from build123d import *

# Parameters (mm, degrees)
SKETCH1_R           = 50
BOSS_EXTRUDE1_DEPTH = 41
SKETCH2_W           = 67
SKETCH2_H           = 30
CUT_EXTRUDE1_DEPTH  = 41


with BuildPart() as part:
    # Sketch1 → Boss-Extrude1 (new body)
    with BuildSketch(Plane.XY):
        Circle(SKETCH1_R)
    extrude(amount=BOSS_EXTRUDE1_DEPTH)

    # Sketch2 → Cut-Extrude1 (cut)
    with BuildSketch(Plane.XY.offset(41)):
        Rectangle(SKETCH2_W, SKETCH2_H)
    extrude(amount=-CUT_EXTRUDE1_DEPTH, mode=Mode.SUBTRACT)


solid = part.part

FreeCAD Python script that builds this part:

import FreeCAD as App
import Part
import Sketcher

V = App.Vector


def add_polygon(sketch, points):
    """Adds a closed chain of lines whose ends are joined by coincident constraints."""
    first, n = sketch.GeometryCount, len(points)
    for a, b in zip(points, points[1:] + points[:1]):
        sketch.addGeometry(Part.LineSegment(App.Vector(*a, 0), App.Vector(*b, 0)), False)
    for i in range(n):
        sketch.addConstraint(Sketcher.Constraint("Coincident", first + i, 2, first + (i + 1) % n, 1))

doc = App.newDocument("Part")
body = doc.addObject("PartDesign::Body", "Body")

sketch1 = body.newObject("Sketcher::SketchObject", "Sketch")
sketch1.AttachmentSupport = (doc.getObject("XY_Plane"), [""])
sketch1.MapMode = "FlatFace"
sketch1.addGeometry(Part.Circle(V(0, 0, 0), V(0, 0, 1), 50), False)
sketch1.addConstraint(Sketcher.Constraint("Coincident", 0, 3, -1, 1))
sketch1.addConstraint(Sketcher.Constraint("Diameter", 0, 100.0))
pad1 = body.newObject("PartDesign::Pad", "Pad")
pad1.Profile = sketch1
pad1.Length = 41

sketch2 = body.newObject("Sketcher::SketchObject", "Sketch001")
sketch2.AttachmentSupport = (doc.getObject("XY_Plane"), [""])
sketch2.MapMode = "FlatFace"
sketch2.AttachmentOffset = App.Placement(V(0, 0, 41), App.Rotation())
add_polygon(sketch2, [(-34, 15), (-34, -15), (34, -15), (34, 15)])
sketch2.addConstraint(Sketcher.Constraint("Vertical", 0))
sketch2.addConstraint(Sketcher.Constraint("Horizontal", 1))
sketch2.addConstraint(Sketcher.Constraint("Vertical", 2))
sketch2.addConstraint(Sketcher.Constraint("Horizontal", 3))
sketch2.addConstraint(Sketcher.Constraint("Symmetric", 0, 2, 2, 2, -1, 1))
sketch2.addConstraint(Sketcher.Constraint("DistanceX", 1, 1, 1, 2, 67.0))
sketch2.addConstraint(Sketcher.Constraint("DistanceY", 0, 2, 0, 1, 30.0))
pocket1 = body.newObject("PartDesign::Pocket", "Pocket")
pocket1.Profile = sketch2
pocket1.Length = 41

doc.recompute()
